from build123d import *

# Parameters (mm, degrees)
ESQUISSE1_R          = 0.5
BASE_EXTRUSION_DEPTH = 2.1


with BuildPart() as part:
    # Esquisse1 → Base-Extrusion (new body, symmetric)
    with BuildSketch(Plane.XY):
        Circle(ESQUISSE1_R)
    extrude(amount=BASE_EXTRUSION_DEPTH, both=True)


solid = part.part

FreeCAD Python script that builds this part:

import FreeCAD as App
import Part
import Sketcher
from FreeCAD import Vector

doc = App.newDocument("Part")
params = doc.addObject("Spreadsheet::Sheet", "Params")
for row, (alias, value) in enumerate([
    ("sketch1_diameter", "1 mm"),
    ("pad1_length", "4.2 mm"),
], start=1):
    params.set(f"A{row}", alias)
    params.set(f"B{row}", "=" + value)
    params.setAlias(f"B{row}", alias)

body = doc.addObject("PartDesign::Body", "Body")

# Sketch on XY plane
sketch1 = body.newObject("Sketcher::SketchObject", "Sketch")
sketch1.AttachmentSupport = (doc.getObject("XY_Plane"), [""])
sketch1.MapMode = "FlatFace"
sketch1.addGeometry(Part.Circle(Vector(0, 0, 0), Vector(0, 0, 1), 0.5), False)
sketch1.addConstraint([
    Sketcher.Constraint("Coincident", 0, 3, -1, 1),
    Sketcher.Constraint("Diameter", 0, 1.0),
])
sketch1.setExpression("Constraints[1]", "Params.sketch1_diameter")
pad1 = body.newObject("PartDesign::Pad", "Pad")
pad1.Profile = sketch1
pad1.setExpression("Length", "Params.pad1_length")
pad1.Midplane = True

doc.recompute()
